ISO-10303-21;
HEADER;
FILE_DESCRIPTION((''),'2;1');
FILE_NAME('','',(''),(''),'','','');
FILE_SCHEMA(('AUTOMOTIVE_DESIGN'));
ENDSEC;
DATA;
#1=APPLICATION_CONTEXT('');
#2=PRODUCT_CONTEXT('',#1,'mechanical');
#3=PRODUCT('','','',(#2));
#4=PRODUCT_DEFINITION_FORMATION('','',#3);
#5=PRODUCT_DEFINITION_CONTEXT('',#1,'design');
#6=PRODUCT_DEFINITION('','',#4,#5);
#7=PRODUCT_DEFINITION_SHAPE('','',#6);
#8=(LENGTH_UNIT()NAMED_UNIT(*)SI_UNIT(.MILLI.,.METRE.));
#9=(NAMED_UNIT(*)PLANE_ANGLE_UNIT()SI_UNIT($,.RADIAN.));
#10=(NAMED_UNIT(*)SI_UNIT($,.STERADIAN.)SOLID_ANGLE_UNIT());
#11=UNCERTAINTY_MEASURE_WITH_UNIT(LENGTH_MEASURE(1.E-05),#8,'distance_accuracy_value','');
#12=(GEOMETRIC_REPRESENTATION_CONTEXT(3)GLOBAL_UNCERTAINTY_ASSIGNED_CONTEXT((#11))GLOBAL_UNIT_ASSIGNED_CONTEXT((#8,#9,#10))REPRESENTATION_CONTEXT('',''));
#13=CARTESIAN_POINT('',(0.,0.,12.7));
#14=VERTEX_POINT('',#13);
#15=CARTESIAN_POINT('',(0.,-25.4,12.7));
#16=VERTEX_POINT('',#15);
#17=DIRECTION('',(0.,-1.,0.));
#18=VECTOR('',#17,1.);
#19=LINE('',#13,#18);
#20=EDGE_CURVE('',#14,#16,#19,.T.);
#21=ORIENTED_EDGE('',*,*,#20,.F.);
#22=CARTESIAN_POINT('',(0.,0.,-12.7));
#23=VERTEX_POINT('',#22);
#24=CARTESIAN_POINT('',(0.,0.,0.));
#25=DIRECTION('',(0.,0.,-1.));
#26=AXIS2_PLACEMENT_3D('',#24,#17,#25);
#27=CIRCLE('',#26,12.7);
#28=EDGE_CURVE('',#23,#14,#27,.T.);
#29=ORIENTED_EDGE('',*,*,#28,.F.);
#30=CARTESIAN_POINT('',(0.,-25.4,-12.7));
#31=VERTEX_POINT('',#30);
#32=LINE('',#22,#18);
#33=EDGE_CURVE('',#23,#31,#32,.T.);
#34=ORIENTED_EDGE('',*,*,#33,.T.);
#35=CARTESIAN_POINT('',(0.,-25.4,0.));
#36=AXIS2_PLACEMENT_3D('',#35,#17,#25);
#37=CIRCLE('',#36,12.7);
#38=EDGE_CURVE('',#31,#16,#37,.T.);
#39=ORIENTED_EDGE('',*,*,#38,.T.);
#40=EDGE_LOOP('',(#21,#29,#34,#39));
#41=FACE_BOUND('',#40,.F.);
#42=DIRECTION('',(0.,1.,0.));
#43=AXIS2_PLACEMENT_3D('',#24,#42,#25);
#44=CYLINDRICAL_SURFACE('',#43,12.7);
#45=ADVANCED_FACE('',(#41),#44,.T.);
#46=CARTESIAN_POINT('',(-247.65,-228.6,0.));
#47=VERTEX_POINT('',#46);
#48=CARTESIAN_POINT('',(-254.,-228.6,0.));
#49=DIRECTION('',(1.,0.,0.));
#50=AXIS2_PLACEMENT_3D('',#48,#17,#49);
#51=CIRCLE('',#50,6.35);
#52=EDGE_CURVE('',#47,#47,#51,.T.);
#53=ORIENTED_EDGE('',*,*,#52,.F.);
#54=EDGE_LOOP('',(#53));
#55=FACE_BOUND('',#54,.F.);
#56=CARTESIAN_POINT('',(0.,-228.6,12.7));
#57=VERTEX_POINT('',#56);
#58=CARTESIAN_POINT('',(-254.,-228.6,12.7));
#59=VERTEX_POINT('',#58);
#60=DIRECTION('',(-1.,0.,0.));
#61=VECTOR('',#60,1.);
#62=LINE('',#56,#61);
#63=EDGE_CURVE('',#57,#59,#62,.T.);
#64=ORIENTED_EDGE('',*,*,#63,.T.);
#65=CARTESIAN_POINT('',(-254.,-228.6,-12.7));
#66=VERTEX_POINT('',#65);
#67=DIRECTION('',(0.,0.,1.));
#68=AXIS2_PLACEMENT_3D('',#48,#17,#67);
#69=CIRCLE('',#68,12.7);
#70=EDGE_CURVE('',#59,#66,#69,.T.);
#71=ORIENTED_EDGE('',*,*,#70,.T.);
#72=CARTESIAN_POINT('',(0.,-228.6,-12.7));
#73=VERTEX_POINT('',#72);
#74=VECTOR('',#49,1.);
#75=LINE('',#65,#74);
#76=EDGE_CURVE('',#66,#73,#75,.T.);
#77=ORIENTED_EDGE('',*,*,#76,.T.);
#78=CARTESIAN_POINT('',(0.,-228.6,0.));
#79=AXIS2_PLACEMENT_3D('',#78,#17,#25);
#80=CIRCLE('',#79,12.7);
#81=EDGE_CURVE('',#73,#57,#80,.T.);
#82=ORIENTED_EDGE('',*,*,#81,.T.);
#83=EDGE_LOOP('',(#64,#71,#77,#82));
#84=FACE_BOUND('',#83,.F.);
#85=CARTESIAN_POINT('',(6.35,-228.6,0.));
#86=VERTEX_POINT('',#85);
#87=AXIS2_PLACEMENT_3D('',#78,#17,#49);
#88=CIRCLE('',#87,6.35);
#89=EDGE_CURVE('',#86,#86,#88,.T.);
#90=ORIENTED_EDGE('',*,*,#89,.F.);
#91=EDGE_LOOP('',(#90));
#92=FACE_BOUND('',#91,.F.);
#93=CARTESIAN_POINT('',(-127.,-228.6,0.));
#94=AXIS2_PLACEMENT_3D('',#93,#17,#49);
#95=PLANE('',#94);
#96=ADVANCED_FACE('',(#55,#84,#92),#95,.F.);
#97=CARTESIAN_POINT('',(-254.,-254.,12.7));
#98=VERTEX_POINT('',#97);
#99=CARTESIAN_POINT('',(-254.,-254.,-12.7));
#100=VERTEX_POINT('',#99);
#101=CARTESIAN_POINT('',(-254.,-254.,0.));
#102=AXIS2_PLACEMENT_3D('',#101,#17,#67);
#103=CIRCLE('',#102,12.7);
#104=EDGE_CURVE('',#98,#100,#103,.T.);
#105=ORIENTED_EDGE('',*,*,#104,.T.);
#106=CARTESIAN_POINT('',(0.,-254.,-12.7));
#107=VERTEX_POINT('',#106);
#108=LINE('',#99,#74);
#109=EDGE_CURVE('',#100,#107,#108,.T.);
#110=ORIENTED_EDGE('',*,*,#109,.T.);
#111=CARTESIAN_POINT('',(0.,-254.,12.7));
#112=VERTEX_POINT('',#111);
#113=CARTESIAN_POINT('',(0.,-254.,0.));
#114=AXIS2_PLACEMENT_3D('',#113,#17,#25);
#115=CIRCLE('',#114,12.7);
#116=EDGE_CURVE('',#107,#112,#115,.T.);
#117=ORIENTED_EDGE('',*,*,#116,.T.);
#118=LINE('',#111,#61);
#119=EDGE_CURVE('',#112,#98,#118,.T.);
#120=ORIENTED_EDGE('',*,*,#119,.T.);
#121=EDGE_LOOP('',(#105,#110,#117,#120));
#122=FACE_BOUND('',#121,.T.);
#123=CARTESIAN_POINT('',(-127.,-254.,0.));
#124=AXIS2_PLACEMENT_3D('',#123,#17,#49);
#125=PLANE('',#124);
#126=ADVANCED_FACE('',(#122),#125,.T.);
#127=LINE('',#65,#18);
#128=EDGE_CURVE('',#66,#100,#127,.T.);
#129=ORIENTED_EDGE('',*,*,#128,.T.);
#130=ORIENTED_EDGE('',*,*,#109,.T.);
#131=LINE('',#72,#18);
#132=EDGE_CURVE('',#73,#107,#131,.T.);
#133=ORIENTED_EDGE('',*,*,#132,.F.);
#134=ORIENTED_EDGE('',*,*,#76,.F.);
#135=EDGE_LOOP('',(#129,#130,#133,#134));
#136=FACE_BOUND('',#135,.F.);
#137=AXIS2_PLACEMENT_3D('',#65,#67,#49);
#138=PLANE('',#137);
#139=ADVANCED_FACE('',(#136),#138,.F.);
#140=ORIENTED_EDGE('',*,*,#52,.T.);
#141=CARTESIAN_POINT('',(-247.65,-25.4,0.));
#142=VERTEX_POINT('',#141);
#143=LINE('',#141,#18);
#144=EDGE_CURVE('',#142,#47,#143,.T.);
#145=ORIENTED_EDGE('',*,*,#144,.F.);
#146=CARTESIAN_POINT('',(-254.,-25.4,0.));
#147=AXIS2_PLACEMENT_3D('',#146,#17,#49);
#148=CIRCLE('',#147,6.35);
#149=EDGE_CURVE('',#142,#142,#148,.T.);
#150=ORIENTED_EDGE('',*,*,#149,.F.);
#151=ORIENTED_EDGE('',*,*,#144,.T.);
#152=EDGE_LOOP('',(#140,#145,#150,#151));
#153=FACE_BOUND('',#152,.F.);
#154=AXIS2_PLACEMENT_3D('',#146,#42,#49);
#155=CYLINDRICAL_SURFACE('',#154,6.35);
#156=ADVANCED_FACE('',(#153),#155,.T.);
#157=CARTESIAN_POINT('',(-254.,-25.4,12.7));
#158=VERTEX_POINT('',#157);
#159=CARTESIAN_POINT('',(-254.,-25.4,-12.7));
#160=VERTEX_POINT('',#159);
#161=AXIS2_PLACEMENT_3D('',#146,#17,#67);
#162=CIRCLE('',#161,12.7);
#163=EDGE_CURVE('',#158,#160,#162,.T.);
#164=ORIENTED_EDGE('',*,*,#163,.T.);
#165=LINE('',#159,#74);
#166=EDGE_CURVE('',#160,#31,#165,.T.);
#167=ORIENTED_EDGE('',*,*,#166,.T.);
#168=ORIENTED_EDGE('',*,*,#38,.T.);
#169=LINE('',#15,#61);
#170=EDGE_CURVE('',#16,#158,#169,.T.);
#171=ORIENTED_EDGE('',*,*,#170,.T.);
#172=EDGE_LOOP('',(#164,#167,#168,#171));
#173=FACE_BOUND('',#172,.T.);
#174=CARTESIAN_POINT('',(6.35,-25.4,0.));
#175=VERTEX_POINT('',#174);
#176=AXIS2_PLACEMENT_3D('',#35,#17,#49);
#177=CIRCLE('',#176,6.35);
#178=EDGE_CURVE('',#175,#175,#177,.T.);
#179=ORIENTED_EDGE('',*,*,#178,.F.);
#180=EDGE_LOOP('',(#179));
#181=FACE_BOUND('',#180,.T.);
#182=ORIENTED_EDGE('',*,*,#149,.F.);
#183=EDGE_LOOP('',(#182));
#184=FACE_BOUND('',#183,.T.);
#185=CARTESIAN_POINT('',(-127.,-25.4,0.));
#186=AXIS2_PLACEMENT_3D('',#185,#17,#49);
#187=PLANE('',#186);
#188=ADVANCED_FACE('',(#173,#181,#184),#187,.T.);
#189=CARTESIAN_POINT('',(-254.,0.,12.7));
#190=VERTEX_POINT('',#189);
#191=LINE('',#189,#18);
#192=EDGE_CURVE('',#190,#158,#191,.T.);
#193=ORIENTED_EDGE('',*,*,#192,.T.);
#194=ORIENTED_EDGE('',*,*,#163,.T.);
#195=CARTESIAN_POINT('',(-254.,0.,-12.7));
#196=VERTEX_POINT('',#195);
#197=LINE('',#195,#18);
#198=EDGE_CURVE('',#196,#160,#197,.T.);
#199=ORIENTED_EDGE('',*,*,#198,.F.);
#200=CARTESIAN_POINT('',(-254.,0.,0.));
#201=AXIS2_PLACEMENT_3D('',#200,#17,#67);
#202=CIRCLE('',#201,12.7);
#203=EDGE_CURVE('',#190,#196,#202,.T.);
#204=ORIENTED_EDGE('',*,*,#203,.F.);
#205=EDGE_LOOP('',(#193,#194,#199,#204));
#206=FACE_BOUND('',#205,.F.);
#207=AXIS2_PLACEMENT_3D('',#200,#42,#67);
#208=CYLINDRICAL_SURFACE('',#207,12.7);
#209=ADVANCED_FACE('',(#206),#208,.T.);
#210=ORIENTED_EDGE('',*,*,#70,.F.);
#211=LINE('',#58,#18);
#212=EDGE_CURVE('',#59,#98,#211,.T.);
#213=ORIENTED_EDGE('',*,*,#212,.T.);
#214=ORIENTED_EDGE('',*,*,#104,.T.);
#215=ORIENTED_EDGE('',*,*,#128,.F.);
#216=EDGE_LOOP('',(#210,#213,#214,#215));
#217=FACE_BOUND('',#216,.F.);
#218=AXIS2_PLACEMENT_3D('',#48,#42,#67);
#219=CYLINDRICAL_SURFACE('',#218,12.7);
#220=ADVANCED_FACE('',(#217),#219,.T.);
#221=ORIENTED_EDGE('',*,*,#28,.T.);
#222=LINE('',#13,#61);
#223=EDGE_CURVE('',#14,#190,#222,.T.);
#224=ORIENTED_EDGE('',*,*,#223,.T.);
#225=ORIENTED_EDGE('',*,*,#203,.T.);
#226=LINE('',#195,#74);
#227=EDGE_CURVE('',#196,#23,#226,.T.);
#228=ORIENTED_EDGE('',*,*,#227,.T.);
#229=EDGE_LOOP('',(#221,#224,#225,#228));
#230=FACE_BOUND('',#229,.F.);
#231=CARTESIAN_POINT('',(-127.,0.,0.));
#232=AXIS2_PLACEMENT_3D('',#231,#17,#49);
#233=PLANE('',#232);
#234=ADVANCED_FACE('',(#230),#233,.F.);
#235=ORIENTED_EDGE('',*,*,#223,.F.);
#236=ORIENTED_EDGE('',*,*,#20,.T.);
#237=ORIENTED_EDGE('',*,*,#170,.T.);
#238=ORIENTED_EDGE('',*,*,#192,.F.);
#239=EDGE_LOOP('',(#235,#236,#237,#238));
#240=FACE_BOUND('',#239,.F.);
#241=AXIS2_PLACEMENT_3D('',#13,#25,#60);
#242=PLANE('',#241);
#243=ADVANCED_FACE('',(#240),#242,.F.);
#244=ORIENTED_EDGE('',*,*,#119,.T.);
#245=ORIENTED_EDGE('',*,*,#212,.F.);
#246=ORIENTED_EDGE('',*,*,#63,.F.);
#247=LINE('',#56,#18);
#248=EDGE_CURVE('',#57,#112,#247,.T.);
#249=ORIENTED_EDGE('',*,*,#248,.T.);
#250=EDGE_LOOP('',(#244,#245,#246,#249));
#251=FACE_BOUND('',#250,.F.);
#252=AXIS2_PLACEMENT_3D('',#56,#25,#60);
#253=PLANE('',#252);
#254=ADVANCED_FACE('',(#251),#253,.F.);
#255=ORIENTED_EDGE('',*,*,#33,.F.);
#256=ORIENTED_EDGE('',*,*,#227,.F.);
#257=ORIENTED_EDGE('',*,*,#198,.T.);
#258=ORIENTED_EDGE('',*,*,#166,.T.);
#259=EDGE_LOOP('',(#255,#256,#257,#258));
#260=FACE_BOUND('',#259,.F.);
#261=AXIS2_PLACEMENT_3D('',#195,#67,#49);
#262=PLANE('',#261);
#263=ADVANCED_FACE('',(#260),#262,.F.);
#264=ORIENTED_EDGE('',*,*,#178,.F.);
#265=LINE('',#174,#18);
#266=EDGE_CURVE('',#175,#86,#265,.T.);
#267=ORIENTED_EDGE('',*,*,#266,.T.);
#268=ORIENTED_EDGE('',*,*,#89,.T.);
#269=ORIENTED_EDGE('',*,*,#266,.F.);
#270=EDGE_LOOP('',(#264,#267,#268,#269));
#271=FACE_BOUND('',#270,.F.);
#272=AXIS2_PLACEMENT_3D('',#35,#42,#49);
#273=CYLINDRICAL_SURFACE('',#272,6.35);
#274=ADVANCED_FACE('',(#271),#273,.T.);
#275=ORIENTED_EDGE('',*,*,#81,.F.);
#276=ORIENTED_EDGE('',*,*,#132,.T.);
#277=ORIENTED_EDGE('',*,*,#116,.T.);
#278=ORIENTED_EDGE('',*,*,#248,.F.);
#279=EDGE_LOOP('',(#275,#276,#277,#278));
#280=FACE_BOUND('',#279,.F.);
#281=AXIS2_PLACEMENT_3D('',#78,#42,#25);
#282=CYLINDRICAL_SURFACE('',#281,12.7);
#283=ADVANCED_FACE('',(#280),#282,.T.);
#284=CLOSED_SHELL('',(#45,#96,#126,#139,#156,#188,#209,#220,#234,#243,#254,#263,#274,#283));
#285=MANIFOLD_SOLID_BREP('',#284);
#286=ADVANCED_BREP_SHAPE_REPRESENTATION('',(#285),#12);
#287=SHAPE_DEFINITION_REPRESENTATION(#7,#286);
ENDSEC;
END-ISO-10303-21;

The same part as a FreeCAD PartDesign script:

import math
import FreeCAD as App
import Part
import Sketcher

V = App.Vector
Q = App.Units.Quantity

doc = App.newDocument("Part")
body = doc.addObject("PartDesign::Body", "Body")

# Sketch on XZ plane
sketch1 = body.newObject("Sketcher::SketchObject", "Sketch")
sketch1.AttachmentSupport = (doc.getObject("XZ_Plane"), [""])
sketch1.MapMode = "FlatFace"
sketch1.addGeometry(Part.LineSegment(V(-254, -12.7, 0), V(0, -12.7, 0)), False)
sketch1.addGeometry(Part.ArcOfCircle(Part.Circle(V(0, 0, 0), V(0, 0, 1), 12.7), math.radians(-90), math.radians(90)), False)
sketch1.addGeometry(Part.LineSegment(V(0, 12.7, 0), V(-254, 12.7, 0)), False)
sketch1.addGeometry(Part.ArcOfCircle(Part.Circle(V(-254, 0, 0), V(0, 0, 1), 12.7), math.radians(90), math.radians(270)), False)
sketch1.addConstraint(Sketcher.Constraint("Tangent", 0, 2, 1, 1))
sketch1.addConstraint(Sketcher.Constraint("Tangent", 1, 2, 2, 1))
sketch1.addConstraint(Sketcher.Constraint("Tangent", 2, 2, 3, 1))
sketch1.addConstraint(Sketcher.Constraint("Tangent", 3, 2, 0, 1))
sketch1.addConstraint(Sketcher.Constraint("Horizontal", 0))
sketch1.addConstraint(Sketcher.Constraint("Horizontal", 2))
sketch1.addConstraint(Sketcher.Constraint("Coincident", 1, 3, -1, 1))
sketch1.addConstraint(Sketcher.Constraint("Radius", 1, Q("0.5 in")))
sketch1.addConstraint(Sketcher.Constraint("DistanceX", 0, 1, 0, 2, Q("10 in")))
pad1 = body.newObject("PartDesign::Pad", "Pad")
pad1.Profile = sketch1
pad1.Length = Q("1 in")

# Sketch on XZ plane
sketch2 = body.newObject("Sketcher::SketchObject", "Sketch001")
sketch2.AttachmentSupport = (doc.getObject("XZ_Plane"), [""])
sketch2.MapMode = "FlatFace"
sketch2.AttachmentOffset = App.Placement(V(0, 0, 1 * 25.4), App.Rotation())
sketch2.addGeometry(Part.Circle(V(-254, 0, 0), V(0, 0, 1), 6.35), False)
sketch2.addGeometry(Part.Circle(V(0, 0, 0), V(0, 0, 1), 6.35), False)
sketch2.addConstraint(Sketcher.Constraint("Coincident", 1, 3, -1, 1))
sketch2.addConstraint(Sketcher.Constraint("Equal", 0, 1))
sketch2.addConstraint(Sketcher.Constraint("PointOnObject", 0, 3, -1))
sketch2.addConstraint(Sketcher.Constraint("Diameter", 0, Q("0.5 in")))
sketch2.addConstraint(Sketcher.Constraint("DistanceX", 0, 3, -1, 1, Q("10 in")))
pad2 = body.newObject("PartDesign::Pad", "Pad001")
pad2.Profile = sketch2
pad2.Length = Q("8 in")

# Sketch on XZ plane
sketch3 = body.newObject("Sketcher::SketchObject", "Sketch002")
sketch3.AttachmentSupport = (doc.getObject("XZ_Plane"), [""])
sketch3.MapMode = "FlatFace"
sketch3.AttachmentOffset = App.Placement(V(0, 0, 9 * 25.4), App.Rotation())
sketch3.addGeometry(Part.LineSegment(V(0, 12.7, 0), V(-254, 12.7, 0)), False)
sketch3.addGeometry(Part.ArcOfCircle(Part.Circle(V(-254, 0, 0), V(0, 0, 1), 12.7), math.radians(90), math.radians(270)), False)
sketch3.addGeometry(Part.LineSegment(V(-254, -12.7, 0), V(0, -12.7, 0)), False)
sketch3.addGeometry(Part.ArcOfCircle(Part.Circle(V(0, 0, 0), V(0, 0, 1), 12.7), math.radians(-90), math.radians(90)), False)
sketch3.addConstraint(Sketcher.Constraint("Tangent", 0, 2, 1, 1))
sketch3.addConstraint(Sketcher.Constraint("Tangent", 1, 2, 2, 1))
sketch3.addConstraint(Sketcher.Constraint("Tangent", 2, 2, 3, 1))
sketch3.addConstraint(Sketcher.Constraint("Tangent", 3, 2, 0, 1))
sketch3.addConstraint(Sketcher.Constraint("Horizontal", 0))
sketch3.addConstraint(Sketcher.Constraint("Horizontal", 2))
sketch3.addConstraint(Sketcher.Constraint("Coincident", 3, 3, -1, 1))
sketch3.addConstraint(Sketcher.Constraint("Radius", 1, Q("0.5 in")))
sketch3.addConstraint(Sketcher.Constraint("DistanceX", 0, 2, 0, 1, Q("10 in")))
pad3 = body.newObject("PartDesign::Pad", "Pad002")
pad3.Profile = sketch3
pad3.Length = Q("1 in")

doc.recompute()
